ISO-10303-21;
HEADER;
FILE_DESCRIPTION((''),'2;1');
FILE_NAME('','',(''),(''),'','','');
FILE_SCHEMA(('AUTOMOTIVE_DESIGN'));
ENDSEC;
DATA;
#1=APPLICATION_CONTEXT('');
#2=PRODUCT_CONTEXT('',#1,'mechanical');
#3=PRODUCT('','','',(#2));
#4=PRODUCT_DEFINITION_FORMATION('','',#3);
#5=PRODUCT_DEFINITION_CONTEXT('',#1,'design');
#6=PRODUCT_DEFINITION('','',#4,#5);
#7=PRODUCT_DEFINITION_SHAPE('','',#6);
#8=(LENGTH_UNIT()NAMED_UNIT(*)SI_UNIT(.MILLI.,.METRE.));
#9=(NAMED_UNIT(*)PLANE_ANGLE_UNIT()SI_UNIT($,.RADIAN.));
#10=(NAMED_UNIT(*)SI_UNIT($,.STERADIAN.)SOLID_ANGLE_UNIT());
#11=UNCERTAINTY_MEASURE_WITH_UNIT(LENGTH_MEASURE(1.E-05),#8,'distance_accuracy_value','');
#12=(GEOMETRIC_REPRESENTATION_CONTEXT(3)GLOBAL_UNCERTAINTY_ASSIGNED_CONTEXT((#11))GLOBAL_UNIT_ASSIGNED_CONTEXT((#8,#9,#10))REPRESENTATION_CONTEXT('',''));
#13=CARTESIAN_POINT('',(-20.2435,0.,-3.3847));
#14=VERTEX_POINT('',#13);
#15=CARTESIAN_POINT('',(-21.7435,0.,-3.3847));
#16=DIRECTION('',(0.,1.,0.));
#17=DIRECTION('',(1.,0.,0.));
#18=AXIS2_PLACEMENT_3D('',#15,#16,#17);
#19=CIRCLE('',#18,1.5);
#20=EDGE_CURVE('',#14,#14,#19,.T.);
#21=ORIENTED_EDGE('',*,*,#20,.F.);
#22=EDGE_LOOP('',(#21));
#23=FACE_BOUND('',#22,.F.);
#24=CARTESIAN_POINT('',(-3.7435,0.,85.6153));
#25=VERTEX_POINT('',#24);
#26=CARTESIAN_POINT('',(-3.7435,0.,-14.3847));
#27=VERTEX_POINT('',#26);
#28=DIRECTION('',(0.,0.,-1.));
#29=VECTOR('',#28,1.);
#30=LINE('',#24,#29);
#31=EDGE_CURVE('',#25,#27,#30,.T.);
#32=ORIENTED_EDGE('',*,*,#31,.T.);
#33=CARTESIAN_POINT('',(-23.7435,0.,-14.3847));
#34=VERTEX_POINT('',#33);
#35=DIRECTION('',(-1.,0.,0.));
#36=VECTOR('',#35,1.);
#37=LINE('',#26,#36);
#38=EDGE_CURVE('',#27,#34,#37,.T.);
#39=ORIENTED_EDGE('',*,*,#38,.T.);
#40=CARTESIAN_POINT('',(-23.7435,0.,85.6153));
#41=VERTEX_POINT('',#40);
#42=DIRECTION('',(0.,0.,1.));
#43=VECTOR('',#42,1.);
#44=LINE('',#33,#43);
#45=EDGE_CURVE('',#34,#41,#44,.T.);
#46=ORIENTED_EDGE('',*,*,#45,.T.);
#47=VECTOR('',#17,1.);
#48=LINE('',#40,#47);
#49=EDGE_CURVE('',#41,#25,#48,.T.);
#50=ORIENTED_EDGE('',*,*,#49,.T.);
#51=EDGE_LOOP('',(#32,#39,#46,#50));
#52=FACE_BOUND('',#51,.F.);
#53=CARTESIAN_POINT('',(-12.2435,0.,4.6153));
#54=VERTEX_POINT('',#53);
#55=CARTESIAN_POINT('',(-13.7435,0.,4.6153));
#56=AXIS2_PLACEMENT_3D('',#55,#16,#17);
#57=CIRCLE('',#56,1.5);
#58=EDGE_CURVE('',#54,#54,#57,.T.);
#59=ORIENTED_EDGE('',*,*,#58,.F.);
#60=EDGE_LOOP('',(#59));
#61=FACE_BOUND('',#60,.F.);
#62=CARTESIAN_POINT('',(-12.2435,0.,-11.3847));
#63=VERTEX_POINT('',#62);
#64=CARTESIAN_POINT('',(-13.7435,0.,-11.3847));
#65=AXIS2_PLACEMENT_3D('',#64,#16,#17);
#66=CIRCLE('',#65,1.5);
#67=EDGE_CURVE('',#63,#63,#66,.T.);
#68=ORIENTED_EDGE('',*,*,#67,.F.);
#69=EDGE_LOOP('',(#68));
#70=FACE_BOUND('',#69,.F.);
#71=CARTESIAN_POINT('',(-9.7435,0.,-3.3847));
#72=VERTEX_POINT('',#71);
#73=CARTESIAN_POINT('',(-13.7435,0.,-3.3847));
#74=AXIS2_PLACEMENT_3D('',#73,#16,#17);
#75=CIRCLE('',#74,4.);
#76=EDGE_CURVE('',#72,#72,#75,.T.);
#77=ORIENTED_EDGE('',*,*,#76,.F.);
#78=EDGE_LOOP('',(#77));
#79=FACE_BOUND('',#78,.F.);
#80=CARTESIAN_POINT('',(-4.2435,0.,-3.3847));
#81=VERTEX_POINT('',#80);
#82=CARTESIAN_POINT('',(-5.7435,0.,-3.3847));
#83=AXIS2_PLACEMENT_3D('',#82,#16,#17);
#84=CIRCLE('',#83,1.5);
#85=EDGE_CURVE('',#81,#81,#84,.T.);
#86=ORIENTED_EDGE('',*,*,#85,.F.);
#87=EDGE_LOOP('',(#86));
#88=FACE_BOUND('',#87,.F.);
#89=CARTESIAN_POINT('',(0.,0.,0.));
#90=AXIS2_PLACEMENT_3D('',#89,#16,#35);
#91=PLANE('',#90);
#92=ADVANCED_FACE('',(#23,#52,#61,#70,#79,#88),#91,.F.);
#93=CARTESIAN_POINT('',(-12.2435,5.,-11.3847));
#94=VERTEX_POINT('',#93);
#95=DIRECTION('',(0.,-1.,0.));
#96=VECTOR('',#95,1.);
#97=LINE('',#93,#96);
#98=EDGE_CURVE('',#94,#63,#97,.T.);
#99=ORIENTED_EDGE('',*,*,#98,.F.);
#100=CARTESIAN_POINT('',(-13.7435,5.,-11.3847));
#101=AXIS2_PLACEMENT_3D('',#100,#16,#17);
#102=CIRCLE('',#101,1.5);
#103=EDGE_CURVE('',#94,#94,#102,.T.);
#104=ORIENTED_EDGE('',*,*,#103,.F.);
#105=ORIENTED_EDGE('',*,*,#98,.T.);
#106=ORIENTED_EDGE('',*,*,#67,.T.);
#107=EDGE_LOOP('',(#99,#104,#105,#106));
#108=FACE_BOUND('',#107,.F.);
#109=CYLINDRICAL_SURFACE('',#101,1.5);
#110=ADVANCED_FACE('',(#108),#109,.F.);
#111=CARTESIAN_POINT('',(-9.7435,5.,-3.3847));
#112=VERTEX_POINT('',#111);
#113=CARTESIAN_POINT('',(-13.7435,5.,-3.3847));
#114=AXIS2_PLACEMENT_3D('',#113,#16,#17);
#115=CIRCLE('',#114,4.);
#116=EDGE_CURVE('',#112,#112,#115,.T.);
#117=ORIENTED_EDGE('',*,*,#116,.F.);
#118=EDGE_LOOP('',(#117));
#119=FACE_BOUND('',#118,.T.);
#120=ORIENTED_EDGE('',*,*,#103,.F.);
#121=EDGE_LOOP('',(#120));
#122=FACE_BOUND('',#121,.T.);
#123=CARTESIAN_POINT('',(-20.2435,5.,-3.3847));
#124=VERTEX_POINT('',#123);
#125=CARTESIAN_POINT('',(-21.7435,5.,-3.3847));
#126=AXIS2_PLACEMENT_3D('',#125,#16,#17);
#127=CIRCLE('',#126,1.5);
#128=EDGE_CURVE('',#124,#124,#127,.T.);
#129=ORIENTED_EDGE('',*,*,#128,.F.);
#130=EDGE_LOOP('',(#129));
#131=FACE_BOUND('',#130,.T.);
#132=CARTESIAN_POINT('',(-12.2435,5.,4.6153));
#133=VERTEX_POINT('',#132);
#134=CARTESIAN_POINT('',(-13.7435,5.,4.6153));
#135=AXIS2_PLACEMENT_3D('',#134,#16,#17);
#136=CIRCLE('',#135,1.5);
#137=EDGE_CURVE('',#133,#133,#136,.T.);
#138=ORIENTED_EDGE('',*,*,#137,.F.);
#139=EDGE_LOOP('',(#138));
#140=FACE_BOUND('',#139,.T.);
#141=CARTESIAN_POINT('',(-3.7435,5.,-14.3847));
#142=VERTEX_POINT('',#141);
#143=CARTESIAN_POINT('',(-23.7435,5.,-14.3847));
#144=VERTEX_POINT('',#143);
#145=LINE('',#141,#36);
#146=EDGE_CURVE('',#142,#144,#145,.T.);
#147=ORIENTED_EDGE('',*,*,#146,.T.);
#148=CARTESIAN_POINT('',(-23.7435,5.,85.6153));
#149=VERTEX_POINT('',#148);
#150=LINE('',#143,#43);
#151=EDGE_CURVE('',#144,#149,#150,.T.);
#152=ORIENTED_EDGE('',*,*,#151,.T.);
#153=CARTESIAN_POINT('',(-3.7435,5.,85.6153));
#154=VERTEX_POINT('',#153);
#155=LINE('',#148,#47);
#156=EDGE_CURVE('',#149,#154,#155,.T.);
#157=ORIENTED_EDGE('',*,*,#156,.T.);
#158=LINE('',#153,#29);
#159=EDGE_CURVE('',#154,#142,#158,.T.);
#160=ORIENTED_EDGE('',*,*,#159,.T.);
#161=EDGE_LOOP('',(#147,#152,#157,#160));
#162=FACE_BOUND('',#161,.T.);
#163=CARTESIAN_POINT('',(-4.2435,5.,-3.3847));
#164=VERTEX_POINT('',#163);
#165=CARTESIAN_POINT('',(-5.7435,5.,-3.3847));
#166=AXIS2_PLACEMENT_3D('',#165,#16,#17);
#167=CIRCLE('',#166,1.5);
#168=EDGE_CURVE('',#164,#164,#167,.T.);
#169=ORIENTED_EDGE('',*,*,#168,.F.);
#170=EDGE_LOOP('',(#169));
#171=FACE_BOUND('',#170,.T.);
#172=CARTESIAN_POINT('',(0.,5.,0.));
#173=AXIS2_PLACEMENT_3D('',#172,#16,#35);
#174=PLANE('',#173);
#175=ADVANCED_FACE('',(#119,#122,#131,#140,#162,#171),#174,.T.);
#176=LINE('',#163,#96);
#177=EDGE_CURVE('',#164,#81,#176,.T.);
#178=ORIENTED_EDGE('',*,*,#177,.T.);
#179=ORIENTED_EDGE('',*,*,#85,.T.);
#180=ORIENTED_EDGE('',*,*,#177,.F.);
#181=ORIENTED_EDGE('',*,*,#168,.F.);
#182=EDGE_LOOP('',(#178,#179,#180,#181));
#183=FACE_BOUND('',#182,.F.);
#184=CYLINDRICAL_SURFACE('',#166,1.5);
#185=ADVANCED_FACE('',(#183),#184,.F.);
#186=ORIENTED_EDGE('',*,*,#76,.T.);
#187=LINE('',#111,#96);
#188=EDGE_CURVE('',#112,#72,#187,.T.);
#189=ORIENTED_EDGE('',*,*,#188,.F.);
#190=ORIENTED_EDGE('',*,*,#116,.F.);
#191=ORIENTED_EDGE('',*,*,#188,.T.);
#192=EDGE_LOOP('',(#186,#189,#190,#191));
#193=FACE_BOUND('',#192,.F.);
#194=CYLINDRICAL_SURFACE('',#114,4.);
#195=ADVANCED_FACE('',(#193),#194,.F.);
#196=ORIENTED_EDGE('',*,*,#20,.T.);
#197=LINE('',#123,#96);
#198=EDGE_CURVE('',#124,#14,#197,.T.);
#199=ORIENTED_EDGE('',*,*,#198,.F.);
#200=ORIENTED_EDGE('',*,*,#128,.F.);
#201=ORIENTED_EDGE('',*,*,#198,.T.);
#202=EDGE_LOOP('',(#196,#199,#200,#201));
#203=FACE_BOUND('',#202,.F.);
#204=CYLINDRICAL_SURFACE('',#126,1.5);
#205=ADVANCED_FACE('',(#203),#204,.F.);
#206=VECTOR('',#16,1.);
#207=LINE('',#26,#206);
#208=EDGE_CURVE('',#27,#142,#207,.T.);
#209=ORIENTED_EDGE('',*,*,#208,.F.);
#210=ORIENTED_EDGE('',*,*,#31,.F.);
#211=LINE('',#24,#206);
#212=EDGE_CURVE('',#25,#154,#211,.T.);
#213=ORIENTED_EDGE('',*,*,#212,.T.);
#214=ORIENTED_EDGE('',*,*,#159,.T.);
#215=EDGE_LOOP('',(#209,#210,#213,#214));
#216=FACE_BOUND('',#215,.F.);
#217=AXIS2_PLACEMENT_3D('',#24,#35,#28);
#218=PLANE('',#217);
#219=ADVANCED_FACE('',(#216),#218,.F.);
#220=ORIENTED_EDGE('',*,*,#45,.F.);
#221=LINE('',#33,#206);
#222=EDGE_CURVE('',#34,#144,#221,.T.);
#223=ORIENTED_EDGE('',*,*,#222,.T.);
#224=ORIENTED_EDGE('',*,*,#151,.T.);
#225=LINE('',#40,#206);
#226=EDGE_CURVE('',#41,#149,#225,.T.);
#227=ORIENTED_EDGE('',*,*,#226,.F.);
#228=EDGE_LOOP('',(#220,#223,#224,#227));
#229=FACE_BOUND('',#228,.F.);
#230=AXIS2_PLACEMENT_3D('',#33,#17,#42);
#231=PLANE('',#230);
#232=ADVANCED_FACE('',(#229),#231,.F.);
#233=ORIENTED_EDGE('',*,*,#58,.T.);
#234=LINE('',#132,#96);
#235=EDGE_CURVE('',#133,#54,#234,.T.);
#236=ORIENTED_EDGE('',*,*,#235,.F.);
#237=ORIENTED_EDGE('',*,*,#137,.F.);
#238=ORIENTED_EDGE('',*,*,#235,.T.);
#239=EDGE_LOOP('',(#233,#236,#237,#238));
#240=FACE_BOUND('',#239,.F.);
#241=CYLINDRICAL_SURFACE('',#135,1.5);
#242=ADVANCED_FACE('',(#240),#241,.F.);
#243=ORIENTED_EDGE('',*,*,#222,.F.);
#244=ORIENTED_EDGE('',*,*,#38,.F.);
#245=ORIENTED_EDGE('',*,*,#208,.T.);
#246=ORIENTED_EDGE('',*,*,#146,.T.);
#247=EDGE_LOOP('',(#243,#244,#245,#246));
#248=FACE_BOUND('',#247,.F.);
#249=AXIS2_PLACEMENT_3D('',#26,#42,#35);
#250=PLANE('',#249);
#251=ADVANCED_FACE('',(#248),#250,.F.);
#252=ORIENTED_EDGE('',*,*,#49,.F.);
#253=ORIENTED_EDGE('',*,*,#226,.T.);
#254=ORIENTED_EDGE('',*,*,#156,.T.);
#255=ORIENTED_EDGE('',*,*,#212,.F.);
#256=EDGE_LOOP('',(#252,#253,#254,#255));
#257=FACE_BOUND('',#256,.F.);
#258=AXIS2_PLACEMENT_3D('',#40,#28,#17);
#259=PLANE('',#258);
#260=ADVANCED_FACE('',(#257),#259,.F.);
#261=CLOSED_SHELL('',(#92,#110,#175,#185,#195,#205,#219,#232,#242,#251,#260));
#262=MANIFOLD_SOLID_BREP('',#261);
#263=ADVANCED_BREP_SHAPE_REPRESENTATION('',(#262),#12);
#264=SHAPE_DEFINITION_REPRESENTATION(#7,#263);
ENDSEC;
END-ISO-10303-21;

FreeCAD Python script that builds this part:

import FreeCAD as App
import Part
import Sketcher
Q = App.Units.Quantity


def add_polygon(sketch, points):
    """Adds a closed chain of lines whose ends are joined by coincident constraints."""
    first, n = sketch.GeometryCount, len(points)
    for a, b in zip(points, points[1:] + points[:1]):
        sketch.addGeometry(Part.LineSegment(App.Vector(*a, 0), App.Vector(*b, 0)), False)
    for i in range(n):
        sketch.addConstraint(Sketcher.Constraint("Coincident", first + i, 2, first + (i + 1) % n, 1))

doc = App.newDocument("Part")
body = doc.addObject("PartDesign::Body", "Body")

# Sketch on XZ plane
sketch1 = body.newObject("Sketcher::SketchObject", "Sketch")
sketch1.AttachmentSupport = (doc.getObject("XZ_Plane"), [""])
sketch1.MapMode = "FlatFace"
add_polygon(sketch1, [(-24, -14), (-24, 86), (-4, 86), (-4, -14)])  # lines 0-3
sketch1.addConstraint(Sketcher.Constraint("Vertical", 0))
sketch1.addConstraint(Sketcher.Constraint("Horizontal", 1))
sketch1.addConstraint(Sketcher.Constraint("Vertical", 2))
sketch1.addConstraint(Sketcher.Constraint("Horizontal", 3))
sketch1.addConstraint(Sketcher.Constraint("DistanceX", 1, 1, 1, 2, Q("20 mm")))
sketch1.addConstraint(Sketcher.Constraint("DistanceY", 0, 1, 0, 2, Q("100 mm")))
sketch1.addConstraint(Sketcher.Constraint("DistanceX", 0, 2, -1, 1, Q("23.7435 mm")))
sketch1.addConstraint(Sketcher.Constraint("DistanceY", -1, 1, 0, 2, Q("85.6153 mm")))
pad1 = body.newObject("PartDesign::Pad", "Pad")
pad1.Profile = sketch1
pad1.Length = 5
pad1.Reversed = True

# Sketch on XZ plane
sketch2 = body.newObject("Sketcher::SketchObject", "Sketch001")
sketch2.AttachmentSupport = (doc.getObject("XZ_Plane"), [""])
sketch2.MapMode = "FlatFace"
sketch2.AttachmentOffset = App.Placement(App.Vector(0, 0, -5), App.Rotation())
sketch2.addGeometry(Part.Circle(App.Vector(-13.7, -3.4, 0), App.Vector(0, 0, 1), 4), False)
sketch2.addGeometry(Part.Circle(App.Vector(-13.7, -11.4, 0), App.Vector(0, 0, 1), 1.5), False)
sketch2.addGeometry(Part.Circle(App.Vector(-5.7, -3.4, 0), App.Vector(0, 0, 1), 1.5), False)
sketch2.addGeometry(Part.Circle(App.Vector(-21.7, -3.4, 0), App.Vector(0, 0, 1), 1.5), False)
sketch2.addGeometry(Part.Circle(App.Vector(-13.7, 4.6, 0), App.Vector(0, 0, 1), 1.5), False)
sketch2.addConstraint(Sketcher.Constraint("Equal", 1, 2))
sketch2.addConstraint(Sketcher.Constraint("Equal", 2, 3))
sketch2.addConstraint(Sketcher.Constraint("Equal", 3, 4))
sketch2.addConstraint(Sketcher.Constraint("Horizontal", 0, 3, 2, 3))
sketch2.addConstraint(Sketcher.Constraint("Horizontal", 2, 3, 3, 3))
sketch2.addConstraint(Sketcher.Constraint("Vertical", 0, 3, 1, 3))
sketch2.addConstraint(Sketcher.Constraint("Vertical", 1, 3, 4, 3))
sketch2.addConstraint(Sketcher.Constraint("Diameter", 0, Q("8 mm")))
sketch2.addConstraint(Sketcher.Constraint("Diameter", 1, Q("3 mm")))
sketch2.addConstraint(Sketcher.Constraint("DistanceY", 1, 3, 0, 3, Q("8 mm")))
sketch2.addConstraint(Sketcher.Constraint("DistanceX", 0, 3, 2, 3, Q("8 mm")))
sketch2.addConstraint(Sketcher.Constraint("DistanceX", 3, 3, 0, 3, Q("8 mm")))
sketch2.addConstraint(Sketcher.Constraint("DistanceY", 0, 3, 4, 3, Q("8 mm")))
sketch2.addConstraint(Sketcher.Constraint("DistanceX", 0, 3, -1, 1, Q("13.7435 mm")))
sketch2.addConstraint(Sketcher.Constraint("DistanceY", 0, 3, -1, 1, Q("3.3847 mm")))
pocket1 = body.newObject("PartDesign::Pocket", "Pocket")
pocket1.Profile = sketch2
pocket1.Type = "ThroughAll"
pocket1.Reversed = True

doc.recompute()
